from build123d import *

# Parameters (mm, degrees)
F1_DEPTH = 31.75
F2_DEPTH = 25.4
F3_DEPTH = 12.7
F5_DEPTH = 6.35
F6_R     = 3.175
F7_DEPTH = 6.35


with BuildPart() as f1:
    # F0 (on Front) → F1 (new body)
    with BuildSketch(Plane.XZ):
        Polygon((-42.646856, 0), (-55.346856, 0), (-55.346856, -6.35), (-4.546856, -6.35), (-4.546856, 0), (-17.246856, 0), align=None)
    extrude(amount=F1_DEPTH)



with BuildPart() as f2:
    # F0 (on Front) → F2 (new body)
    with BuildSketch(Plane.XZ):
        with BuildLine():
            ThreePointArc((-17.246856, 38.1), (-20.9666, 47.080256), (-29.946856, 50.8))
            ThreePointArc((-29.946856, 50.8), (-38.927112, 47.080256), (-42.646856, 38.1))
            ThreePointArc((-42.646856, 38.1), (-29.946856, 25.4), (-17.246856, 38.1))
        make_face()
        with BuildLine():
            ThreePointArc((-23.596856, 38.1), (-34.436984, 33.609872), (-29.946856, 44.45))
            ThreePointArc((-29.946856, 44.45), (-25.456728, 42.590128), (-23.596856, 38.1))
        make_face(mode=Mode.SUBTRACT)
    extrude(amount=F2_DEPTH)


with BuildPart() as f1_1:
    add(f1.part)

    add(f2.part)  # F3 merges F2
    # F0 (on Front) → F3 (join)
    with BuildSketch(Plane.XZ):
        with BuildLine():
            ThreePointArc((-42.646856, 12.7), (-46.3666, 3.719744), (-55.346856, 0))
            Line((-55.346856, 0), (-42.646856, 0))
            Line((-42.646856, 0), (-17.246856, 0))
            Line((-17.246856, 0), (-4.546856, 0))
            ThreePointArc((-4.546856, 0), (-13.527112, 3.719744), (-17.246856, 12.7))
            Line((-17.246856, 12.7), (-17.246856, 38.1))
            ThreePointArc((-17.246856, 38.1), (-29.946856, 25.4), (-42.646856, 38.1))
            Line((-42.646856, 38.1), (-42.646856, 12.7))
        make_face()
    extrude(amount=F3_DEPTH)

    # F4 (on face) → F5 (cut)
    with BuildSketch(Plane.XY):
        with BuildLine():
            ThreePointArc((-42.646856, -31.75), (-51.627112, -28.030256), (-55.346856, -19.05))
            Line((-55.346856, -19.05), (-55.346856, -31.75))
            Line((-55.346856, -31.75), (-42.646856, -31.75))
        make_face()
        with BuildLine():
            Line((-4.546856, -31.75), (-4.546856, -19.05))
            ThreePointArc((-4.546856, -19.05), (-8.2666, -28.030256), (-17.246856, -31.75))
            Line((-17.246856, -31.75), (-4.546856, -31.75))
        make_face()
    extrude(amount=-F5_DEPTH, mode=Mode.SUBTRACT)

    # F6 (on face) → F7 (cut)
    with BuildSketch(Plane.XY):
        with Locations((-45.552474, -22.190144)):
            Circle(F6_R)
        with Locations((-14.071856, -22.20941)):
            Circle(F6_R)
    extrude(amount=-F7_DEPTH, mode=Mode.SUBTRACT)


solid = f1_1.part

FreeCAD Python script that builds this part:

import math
import FreeCAD as App
import Part
import Sketcher

V = App.Vector
Q = App.Units.Quantity

doc = App.newDocument("Part")
body = doc.addObject("PartDesign::Body", "Body")

sketch1 = body.newObject("Sketcher::SketchObject", "Sketch")
sketch1.AttachmentSupport = (doc.getObject("XZ_Plane"), [""])
sketch1.MapMode = "FlatFace"
sketch1.addGeometry([
    Part.LineSegment(V(-55.346856, 0, 0), V(-55.346856, -6.35, 0)),
    Part.LineSegment(V(-55.346856, -6.35, 0), V(-4.546856, -6.35, 0)),
    Part.LineSegment(V(-4.546856, -6.35, 0), V(-4.546856, 0, 0)),
    Part.LineSegment(V(-4.546856, 0, 0), V(-55.346856, 0, 0)),
], False)
sketch1.addConstraint([
    Sketcher.Constraint("Coincident", 0, 2, 1, 1),
    Sketcher.Constraint("Coincident", 1, 2, 2, 1),
    Sketcher.Constraint("Coincident", 2, 2, 3, 1),
    Sketcher.Constraint("Coincident", 3, 2, 0, 1),
    Sketcher.Constraint("Vertical", 0),
    Sketcher.Constraint("Horizontal", 1),
    Sketcher.Constraint("Vertical", 2),
    Sketcher.Constraint("Horizontal", 3),
    Sketcher.Constraint("PointOnObject", 2, 2, -1),
    Sketcher.Constraint("DistanceX", 1, 1, 1, 2, Q("2 in")),
    Sketcher.Constraint("DistanceY", 0, 2, 0, 1, Q("0.25 in")),
    Sketcher.Constraint("DistanceX", 0, 2, -1, 1, Q("55.346856 mm")),
])
pad1 = body.newObject("PartDesign::Pad", "Pad")
pad1.Profile = sketch1
pad1.Length = Q("1.25 in")
body2 = doc.addObject("PartDesign::Body", "Body001")

sketch2 = body2.newObject("Sketcher::SketchObject", "Sketch001")
sketch2.AttachmentSupport = (doc.getObject("XZ_Plane001"), [""])
sketch2.MapMode = "FlatFace"
sketch2.addGeometry([
    Part.ArcOfCircle(Part.Circle(V(-29.946856, 38.1, 0), V(0, 0, 1), 12.7), math.radians(0.000002), math.radians(89.999998)),
    Part.ArcOfCircle(Part.Circle(V(-29.946856, 38.1, 0), V(0, 0, 1), 12.7), math.radians(90.000002), math.radians(179.999998)),
    Part.ArcOfCircle(Part.Circle(V(-29.946856, 38.1, 0), V(0, 0, 1), 12.7), math.radians(180), math.radians(360)),
    Part.ArcOfCircle(Part.Circle(V(-29.946856, 38.1, 0), V(0, 0, 1), 6.35), math.radians(0.000002), math.radians(89.999998)),
    Part.ArcOfCircle(Part.Circle(V(-29.946856, 38.1, 0), V(0, 0, 1), 6.35), math.radians(90), math.radians(360)),
], False)
sketch2.addConstraint([
    Sketcher.Constraint("Tangent", 0, 2, 1, 1),
    Sketcher.Constraint("Tangent", 1, 2, 2, 1),
    Sketcher.Constraint("Tangent", 2, 2, 0, 1),
    Sketcher.Constraint("Tangent", 3, 1, 4, 2),
    Sketcher.Constraint("Coincident", 4, 1, 3, 2),
    Sketcher.Constraint("Coincident", 3, 3, 0, 3),
    Sketcher.Constraint("Horizontal", 4, 3, 1, 2),
    Sketcher.Constraint("Horizontal", 1, 2, 2, 2),
    Sketcher.Constraint("Horizontal", 2, 2, 3, 1),
    Sketcher.Constraint("Vertical", 4, 3, 0, 2),
    Sketcher.Constraint("Vertical", 0, 2, 4, 1),
    Sketcher.Constraint("Radius", 0, Q("0.5 in")),
    Sketcher.Constraint("Radius", 3, Q("0.25 in")),
    Sketcher.Constraint("DistanceY", -1, 1, 0, 2, Q("2 in")),
    Sketcher.Constraint("DistanceX", 0, 3, -1, 1, Q("29.946856 mm")),
])
pad2 = body2.newObject("PartDesign::Pad", "Pad001")
pad2.Profile = sketch2
pad2.Length = Q("1 in")
body.AllowCompound = True
doc.recompute()

boolean = body.newObject("PartDesign::Boolean", "Boolean")
boolean.Type = "Fuse"
boolean.addObjects([body2])

sketch3 = body.newObject("Sketcher::SketchObject", "Sketch002")
sketch3.AttachmentSupport = (doc.getObject("XZ_Plane"), [""])
sketch3.MapMode = "FlatFace"
sketch3.addGeometry([
    Part.ArcOfCircle(Part.Circle(V(-55.346856, 12.7, 0), V(0, 0, 1), 12.7), math.radians(-89.999998), math.radians(-0.000002)),
    Part.LineSegment(V(-55.346856, 0, 0), V(-4.546856, 0, 0)),
    Part.ArcOfCircle(Part.Circle(V(-4.546856, 12.7, 0), V(0, 0, 1), 12.7), math.radians(-179.999998), math.radians(-90.000002)),
    Part.LineSegment(V(-17.246856, 12.7, 0), V(-17.246856, 38.1, 0)),
    Part.ArcOfCircle(Part.Circle(V(-29.946856, 38.1, 0), V(0, 0, 1), 12.7), math.radians(180), math.radians(360)),
    Part.LineSegment(V(-42.646856, 38.1, 0), V(-42.646856, 12.7, 0)),
], False)
sketch3.addConstraint([
    Sketcher.Constraint("Tangent", 0, 1, 1, 1),
    Sketcher.Constraint("Tangent", 1, 2, 2, 2),
    Sketcher.Constraint("Tangent", 2, 1, 3, 1),
    Sketcher.Constraint("Tangent", 3, 2, 4, 2),
    Sketcher.Constraint("Tangent", 4, 1, 5, 1),
    Sketcher.Constraint("Tangent", 5, 2, 0, 2),
    Sketcher.Constraint("Horizontal", 1),
    Sketcher.Constraint("Vertical", 3),
    Sketcher.Constraint("Vertical", 5),
    Sketcher.Constraint("Equal", 0, 2),
    Sketcher.Constraint("Equal", 2, 4),
    Sketcher.Constraint("PointOnObject", 0, 1, -1),
    Sketcher.Constraint("Radius", 0, Q("0.5 in")),
    Sketcher.Constraint("DistanceY", 3, 1, 3, 2, Q("1 in")),
    Sketcher.Constraint("DistanceX", 0, 3, -1, 1, Q("55.346856 mm")),
])
pad3 = body.newObject("PartDesign::Pad", "Pad002")
pad3.Profile = sketch3
pad3.Length = Q("0.5 in")

sketch4 = body.newObject("Sketcher::SketchObject", "Sketch003")
sketch4.AttachmentSupport = (doc.getObject("XY_Plane"), [""])
sketch4.MapMode = "FlatFace"
sketch4.addGeometry([
    Part.ArcOfCircle(Part.Circle(V(-42.646856, -19.05, 0), V(0, 0, 1), 12.7), math.radians(-179.999998), math.radians(-90.000002)),
    Part.LineSegment(V(-55.346856, -19.05, 0), V(-55.346856, -31.75, 0)),
    Part.LineSegment(V(-55.346856, -31.75, 0), V(-42.646856, -31.75, 0)),
    Part.LineSegment(V(-4.546856, -31.75, 0), V(-4.546856, -19.05, 0)),
    Part.ArcOfCircle(Part.Circle(V(-17.246856, -19.05, 0), V(0, 0, 1), 12.7), math.radians(-89.999998), math.radians(-0.000002)),
    Part.LineSegment(V(-17.246856, -31.75, 0), V(-4.546856, -31.75, 0)),
], False)
sketch4.addConstraint([
    Sketcher.Constraint("Tangent", 0, 1, 1, 1),
    Sketcher.Constraint("Coincident", 1, 2, 2, 1),
    Sketcher.Constraint("Tangent", 2, 2, 0, 2),
    Sketcher.Constraint("Tangent", 3, 2, 4, 2),
    Sketcher.Constraint("Tangent", 4, 1, 5, 1),
    Sketcher.Constraint("Coincident", 5, 2, 3, 1),
    Sketcher.Constraint("Vertical", 1),
    Sketcher.Constraint("Horizontal", 2),
    Sketcher.Constraint("Vertical", 3),
    Sketcher.Constraint("Horizontal", 5),
    Sketcher.Constraint("Equal", 0, 4),
    Sketcher.Constraint("Horizontal", 0, 3, 4, 3),
    Sketcher.Constraint("Radius", 0, Q("0.5 in")),
    Sketcher.Constraint("DistanceX", 0, 3, 4, 3, Q("1 in")),
    Sketcher.Constraint("DistanceY", 0, 3, -1, 1, Q("0.75 in")),
    Sketcher.Constraint("DistanceX", 0, 3, -1, 1, Q("42.646856 mm")),
])
pocket1 = body.newObject("PartDesign::Pocket", "Pocket")
pocket1.Profile = sketch4
pocket1.Length = Q("0.25 in")

sketch5 = body.newObject("Sketcher::SketchObject", "Sketch004")
sketch5.AttachmentSupport = (doc.getObject("XY_Plane"), [""])
sketch5.MapMode = "FlatFace"
sketch5.addGeometry([
    Part.Circle(V(-45.552474, -22.190144, 0), V(0, 0, 1), 3.175),
    Part.Circle(V(-14.071856, -22.20941, 0), V(0, 0, 1), 3.175),
], False)
sketch5.addConstraint([
    Sketcher.Constraint("Equal", 0, 1),
    Sketcher.Constraint("Diameter", 0, Q("0.25 in")),
    Sketcher.Constraint("DistanceY", 1, 3, -1, 1, Q("22.20941 mm")),
    Sketcher.Constraint("DistanceX", 0, 3, -1, 1, Q("45.552474 mm")),
    Sketcher.Constraint("DistanceY", 0, 3, -1, 1, Q("22.190144 mm")),
    Sketcher.Constraint("DistanceX", 1, 3, -1, 1, Q("14.071856 mm")),
])
pocket2 = body.newObject("PartDesign::Pocket", "Pocket001")
pocket2.Profile = sketch5
pocket2.Length = Q("0.25 in")

doc.recompute()
